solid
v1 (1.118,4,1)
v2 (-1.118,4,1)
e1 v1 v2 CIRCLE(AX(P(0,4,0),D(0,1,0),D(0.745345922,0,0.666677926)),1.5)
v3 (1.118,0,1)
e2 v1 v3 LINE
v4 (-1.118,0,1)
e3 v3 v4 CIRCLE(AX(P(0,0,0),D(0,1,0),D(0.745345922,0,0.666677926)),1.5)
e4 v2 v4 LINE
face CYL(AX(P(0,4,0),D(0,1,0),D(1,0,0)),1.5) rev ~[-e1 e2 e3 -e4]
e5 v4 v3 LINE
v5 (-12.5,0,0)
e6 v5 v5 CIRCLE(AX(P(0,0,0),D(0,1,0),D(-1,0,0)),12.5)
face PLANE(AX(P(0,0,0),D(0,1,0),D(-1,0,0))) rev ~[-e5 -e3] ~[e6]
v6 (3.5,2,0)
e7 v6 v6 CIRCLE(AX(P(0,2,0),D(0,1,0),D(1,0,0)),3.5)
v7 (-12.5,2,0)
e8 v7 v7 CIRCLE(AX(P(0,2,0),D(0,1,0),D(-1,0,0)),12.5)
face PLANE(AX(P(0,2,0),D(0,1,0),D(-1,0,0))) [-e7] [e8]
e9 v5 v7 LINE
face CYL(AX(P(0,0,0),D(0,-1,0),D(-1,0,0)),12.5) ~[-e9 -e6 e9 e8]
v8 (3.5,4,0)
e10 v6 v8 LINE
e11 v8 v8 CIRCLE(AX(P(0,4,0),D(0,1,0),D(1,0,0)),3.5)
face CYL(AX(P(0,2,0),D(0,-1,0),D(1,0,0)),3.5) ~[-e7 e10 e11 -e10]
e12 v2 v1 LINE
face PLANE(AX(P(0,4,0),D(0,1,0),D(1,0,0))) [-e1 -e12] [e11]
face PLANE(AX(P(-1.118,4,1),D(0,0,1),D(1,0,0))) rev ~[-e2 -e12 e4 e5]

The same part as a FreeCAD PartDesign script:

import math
import FreeCAD as App
import Part
import Sketcher

doc = App.newDocument("Part")
body = doc.addObject("PartDesign::Body", "Body")

sketch1 = doc.addObject("Sketcher::SketchObject", "Sketch")
body.addObject(sketch1)
sketch1.AttachmentSupport = (doc.XZ_Plane, [""])
sketch1.MapMode = "FlatFace"
sketch1.addGeometry(Part.Circle(App.Vector(0, 0, 0), App.Vector(0, 0, 1), 12), False)
sketch1.addConstraint(Sketcher.Constraint("Coincident", 0, 3, -1, 1))
sketch1.addConstraint(Sketcher.Constraint("Diameter", 0, 25.0))
pad1 = doc.addObject("PartDesign::Pad", "Pad")
body.addObject(pad1)
pad1.Profile = sketch1
pad1.Length = 2
pad1.Reversed = True

sketch2 = doc.addObject("Sketcher::SketchObject", "Sketch001")
body.addObject(sketch2)
sketch2.AttachmentSupport = (doc.XZ_Plane, [""])
sketch2.MapMode = "FlatFace"
sketch2.AttachmentOffset = App.Placement(App.Vector(0, 0, -2), App.Rotation())
sketch2.addGeometry(Part.Circle(App.Vector(0, 0, 0), App.Vector(0, 0, 1), 3.5), False)
sketch2.addConstraint(Sketcher.Constraint("Coincident", 0, 3, -1, 1))
sketch2.addConstraint(Sketcher.Constraint("Diameter", 0, 7.0))
pad2 = doc.addObject("PartDesign::Pad", "Pad001")
body.addObject(pad2)
pad2.Profile = sketch2
pad2.Length = 2
pad2.Reversed = True

sketch3 = doc.addObject("Sketcher::SketchObject", "Sketch002")
body.addObject(sketch3)
sketch3.AttachmentSupport = (doc.XZ_Plane, [""])
sketch3.MapMode = "FlatFace"
sketch3.AttachmentOffset = App.Placement(App.Vector(0, 0, -4), App.Rotation())
sketch3.addGeometry(Part.ArcOfCircle(Part.Circle(App.Vector(0, 0, 0), App.Vector(0, 0, 1), 1.5), math.radians(138), math.radians(402)), False)
sketch3.addGeometry(Part.LineSegment(App.Vector(1.1, 1, 0), App.Vector(-1.1, 1, 0)), False)
sketch3.addConstraint(Sketcher.Constraint("Coincident", 0, 1, 1, 2))
sketch3.addConstraint(Sketcher.Constraint("Coincident", 1, 1, 0, 2))
sketch3.addConstraint(Sketcher.Constraint("Horizontal", 1))
sketch3.addConstraint(Sketcher.Constraint("Coincident", 0, 3, -1, 1))
sketch3.addConstraint(Sketcher.Constraint("Radius", 0, 1.5))
sketch3.addConstraint(Sketcher.Constraint("DistanceY", -1, 1, 0, 1, 1.0))
pocket1 = doc.addObject("PartDesign::Pocket", "Pocket")
body.addObject(pocket1)
pocket1.Profile = sketch3
pocket1.Type = "ThroughAll"
pocket1.Reversed = True

doc.recompute()
